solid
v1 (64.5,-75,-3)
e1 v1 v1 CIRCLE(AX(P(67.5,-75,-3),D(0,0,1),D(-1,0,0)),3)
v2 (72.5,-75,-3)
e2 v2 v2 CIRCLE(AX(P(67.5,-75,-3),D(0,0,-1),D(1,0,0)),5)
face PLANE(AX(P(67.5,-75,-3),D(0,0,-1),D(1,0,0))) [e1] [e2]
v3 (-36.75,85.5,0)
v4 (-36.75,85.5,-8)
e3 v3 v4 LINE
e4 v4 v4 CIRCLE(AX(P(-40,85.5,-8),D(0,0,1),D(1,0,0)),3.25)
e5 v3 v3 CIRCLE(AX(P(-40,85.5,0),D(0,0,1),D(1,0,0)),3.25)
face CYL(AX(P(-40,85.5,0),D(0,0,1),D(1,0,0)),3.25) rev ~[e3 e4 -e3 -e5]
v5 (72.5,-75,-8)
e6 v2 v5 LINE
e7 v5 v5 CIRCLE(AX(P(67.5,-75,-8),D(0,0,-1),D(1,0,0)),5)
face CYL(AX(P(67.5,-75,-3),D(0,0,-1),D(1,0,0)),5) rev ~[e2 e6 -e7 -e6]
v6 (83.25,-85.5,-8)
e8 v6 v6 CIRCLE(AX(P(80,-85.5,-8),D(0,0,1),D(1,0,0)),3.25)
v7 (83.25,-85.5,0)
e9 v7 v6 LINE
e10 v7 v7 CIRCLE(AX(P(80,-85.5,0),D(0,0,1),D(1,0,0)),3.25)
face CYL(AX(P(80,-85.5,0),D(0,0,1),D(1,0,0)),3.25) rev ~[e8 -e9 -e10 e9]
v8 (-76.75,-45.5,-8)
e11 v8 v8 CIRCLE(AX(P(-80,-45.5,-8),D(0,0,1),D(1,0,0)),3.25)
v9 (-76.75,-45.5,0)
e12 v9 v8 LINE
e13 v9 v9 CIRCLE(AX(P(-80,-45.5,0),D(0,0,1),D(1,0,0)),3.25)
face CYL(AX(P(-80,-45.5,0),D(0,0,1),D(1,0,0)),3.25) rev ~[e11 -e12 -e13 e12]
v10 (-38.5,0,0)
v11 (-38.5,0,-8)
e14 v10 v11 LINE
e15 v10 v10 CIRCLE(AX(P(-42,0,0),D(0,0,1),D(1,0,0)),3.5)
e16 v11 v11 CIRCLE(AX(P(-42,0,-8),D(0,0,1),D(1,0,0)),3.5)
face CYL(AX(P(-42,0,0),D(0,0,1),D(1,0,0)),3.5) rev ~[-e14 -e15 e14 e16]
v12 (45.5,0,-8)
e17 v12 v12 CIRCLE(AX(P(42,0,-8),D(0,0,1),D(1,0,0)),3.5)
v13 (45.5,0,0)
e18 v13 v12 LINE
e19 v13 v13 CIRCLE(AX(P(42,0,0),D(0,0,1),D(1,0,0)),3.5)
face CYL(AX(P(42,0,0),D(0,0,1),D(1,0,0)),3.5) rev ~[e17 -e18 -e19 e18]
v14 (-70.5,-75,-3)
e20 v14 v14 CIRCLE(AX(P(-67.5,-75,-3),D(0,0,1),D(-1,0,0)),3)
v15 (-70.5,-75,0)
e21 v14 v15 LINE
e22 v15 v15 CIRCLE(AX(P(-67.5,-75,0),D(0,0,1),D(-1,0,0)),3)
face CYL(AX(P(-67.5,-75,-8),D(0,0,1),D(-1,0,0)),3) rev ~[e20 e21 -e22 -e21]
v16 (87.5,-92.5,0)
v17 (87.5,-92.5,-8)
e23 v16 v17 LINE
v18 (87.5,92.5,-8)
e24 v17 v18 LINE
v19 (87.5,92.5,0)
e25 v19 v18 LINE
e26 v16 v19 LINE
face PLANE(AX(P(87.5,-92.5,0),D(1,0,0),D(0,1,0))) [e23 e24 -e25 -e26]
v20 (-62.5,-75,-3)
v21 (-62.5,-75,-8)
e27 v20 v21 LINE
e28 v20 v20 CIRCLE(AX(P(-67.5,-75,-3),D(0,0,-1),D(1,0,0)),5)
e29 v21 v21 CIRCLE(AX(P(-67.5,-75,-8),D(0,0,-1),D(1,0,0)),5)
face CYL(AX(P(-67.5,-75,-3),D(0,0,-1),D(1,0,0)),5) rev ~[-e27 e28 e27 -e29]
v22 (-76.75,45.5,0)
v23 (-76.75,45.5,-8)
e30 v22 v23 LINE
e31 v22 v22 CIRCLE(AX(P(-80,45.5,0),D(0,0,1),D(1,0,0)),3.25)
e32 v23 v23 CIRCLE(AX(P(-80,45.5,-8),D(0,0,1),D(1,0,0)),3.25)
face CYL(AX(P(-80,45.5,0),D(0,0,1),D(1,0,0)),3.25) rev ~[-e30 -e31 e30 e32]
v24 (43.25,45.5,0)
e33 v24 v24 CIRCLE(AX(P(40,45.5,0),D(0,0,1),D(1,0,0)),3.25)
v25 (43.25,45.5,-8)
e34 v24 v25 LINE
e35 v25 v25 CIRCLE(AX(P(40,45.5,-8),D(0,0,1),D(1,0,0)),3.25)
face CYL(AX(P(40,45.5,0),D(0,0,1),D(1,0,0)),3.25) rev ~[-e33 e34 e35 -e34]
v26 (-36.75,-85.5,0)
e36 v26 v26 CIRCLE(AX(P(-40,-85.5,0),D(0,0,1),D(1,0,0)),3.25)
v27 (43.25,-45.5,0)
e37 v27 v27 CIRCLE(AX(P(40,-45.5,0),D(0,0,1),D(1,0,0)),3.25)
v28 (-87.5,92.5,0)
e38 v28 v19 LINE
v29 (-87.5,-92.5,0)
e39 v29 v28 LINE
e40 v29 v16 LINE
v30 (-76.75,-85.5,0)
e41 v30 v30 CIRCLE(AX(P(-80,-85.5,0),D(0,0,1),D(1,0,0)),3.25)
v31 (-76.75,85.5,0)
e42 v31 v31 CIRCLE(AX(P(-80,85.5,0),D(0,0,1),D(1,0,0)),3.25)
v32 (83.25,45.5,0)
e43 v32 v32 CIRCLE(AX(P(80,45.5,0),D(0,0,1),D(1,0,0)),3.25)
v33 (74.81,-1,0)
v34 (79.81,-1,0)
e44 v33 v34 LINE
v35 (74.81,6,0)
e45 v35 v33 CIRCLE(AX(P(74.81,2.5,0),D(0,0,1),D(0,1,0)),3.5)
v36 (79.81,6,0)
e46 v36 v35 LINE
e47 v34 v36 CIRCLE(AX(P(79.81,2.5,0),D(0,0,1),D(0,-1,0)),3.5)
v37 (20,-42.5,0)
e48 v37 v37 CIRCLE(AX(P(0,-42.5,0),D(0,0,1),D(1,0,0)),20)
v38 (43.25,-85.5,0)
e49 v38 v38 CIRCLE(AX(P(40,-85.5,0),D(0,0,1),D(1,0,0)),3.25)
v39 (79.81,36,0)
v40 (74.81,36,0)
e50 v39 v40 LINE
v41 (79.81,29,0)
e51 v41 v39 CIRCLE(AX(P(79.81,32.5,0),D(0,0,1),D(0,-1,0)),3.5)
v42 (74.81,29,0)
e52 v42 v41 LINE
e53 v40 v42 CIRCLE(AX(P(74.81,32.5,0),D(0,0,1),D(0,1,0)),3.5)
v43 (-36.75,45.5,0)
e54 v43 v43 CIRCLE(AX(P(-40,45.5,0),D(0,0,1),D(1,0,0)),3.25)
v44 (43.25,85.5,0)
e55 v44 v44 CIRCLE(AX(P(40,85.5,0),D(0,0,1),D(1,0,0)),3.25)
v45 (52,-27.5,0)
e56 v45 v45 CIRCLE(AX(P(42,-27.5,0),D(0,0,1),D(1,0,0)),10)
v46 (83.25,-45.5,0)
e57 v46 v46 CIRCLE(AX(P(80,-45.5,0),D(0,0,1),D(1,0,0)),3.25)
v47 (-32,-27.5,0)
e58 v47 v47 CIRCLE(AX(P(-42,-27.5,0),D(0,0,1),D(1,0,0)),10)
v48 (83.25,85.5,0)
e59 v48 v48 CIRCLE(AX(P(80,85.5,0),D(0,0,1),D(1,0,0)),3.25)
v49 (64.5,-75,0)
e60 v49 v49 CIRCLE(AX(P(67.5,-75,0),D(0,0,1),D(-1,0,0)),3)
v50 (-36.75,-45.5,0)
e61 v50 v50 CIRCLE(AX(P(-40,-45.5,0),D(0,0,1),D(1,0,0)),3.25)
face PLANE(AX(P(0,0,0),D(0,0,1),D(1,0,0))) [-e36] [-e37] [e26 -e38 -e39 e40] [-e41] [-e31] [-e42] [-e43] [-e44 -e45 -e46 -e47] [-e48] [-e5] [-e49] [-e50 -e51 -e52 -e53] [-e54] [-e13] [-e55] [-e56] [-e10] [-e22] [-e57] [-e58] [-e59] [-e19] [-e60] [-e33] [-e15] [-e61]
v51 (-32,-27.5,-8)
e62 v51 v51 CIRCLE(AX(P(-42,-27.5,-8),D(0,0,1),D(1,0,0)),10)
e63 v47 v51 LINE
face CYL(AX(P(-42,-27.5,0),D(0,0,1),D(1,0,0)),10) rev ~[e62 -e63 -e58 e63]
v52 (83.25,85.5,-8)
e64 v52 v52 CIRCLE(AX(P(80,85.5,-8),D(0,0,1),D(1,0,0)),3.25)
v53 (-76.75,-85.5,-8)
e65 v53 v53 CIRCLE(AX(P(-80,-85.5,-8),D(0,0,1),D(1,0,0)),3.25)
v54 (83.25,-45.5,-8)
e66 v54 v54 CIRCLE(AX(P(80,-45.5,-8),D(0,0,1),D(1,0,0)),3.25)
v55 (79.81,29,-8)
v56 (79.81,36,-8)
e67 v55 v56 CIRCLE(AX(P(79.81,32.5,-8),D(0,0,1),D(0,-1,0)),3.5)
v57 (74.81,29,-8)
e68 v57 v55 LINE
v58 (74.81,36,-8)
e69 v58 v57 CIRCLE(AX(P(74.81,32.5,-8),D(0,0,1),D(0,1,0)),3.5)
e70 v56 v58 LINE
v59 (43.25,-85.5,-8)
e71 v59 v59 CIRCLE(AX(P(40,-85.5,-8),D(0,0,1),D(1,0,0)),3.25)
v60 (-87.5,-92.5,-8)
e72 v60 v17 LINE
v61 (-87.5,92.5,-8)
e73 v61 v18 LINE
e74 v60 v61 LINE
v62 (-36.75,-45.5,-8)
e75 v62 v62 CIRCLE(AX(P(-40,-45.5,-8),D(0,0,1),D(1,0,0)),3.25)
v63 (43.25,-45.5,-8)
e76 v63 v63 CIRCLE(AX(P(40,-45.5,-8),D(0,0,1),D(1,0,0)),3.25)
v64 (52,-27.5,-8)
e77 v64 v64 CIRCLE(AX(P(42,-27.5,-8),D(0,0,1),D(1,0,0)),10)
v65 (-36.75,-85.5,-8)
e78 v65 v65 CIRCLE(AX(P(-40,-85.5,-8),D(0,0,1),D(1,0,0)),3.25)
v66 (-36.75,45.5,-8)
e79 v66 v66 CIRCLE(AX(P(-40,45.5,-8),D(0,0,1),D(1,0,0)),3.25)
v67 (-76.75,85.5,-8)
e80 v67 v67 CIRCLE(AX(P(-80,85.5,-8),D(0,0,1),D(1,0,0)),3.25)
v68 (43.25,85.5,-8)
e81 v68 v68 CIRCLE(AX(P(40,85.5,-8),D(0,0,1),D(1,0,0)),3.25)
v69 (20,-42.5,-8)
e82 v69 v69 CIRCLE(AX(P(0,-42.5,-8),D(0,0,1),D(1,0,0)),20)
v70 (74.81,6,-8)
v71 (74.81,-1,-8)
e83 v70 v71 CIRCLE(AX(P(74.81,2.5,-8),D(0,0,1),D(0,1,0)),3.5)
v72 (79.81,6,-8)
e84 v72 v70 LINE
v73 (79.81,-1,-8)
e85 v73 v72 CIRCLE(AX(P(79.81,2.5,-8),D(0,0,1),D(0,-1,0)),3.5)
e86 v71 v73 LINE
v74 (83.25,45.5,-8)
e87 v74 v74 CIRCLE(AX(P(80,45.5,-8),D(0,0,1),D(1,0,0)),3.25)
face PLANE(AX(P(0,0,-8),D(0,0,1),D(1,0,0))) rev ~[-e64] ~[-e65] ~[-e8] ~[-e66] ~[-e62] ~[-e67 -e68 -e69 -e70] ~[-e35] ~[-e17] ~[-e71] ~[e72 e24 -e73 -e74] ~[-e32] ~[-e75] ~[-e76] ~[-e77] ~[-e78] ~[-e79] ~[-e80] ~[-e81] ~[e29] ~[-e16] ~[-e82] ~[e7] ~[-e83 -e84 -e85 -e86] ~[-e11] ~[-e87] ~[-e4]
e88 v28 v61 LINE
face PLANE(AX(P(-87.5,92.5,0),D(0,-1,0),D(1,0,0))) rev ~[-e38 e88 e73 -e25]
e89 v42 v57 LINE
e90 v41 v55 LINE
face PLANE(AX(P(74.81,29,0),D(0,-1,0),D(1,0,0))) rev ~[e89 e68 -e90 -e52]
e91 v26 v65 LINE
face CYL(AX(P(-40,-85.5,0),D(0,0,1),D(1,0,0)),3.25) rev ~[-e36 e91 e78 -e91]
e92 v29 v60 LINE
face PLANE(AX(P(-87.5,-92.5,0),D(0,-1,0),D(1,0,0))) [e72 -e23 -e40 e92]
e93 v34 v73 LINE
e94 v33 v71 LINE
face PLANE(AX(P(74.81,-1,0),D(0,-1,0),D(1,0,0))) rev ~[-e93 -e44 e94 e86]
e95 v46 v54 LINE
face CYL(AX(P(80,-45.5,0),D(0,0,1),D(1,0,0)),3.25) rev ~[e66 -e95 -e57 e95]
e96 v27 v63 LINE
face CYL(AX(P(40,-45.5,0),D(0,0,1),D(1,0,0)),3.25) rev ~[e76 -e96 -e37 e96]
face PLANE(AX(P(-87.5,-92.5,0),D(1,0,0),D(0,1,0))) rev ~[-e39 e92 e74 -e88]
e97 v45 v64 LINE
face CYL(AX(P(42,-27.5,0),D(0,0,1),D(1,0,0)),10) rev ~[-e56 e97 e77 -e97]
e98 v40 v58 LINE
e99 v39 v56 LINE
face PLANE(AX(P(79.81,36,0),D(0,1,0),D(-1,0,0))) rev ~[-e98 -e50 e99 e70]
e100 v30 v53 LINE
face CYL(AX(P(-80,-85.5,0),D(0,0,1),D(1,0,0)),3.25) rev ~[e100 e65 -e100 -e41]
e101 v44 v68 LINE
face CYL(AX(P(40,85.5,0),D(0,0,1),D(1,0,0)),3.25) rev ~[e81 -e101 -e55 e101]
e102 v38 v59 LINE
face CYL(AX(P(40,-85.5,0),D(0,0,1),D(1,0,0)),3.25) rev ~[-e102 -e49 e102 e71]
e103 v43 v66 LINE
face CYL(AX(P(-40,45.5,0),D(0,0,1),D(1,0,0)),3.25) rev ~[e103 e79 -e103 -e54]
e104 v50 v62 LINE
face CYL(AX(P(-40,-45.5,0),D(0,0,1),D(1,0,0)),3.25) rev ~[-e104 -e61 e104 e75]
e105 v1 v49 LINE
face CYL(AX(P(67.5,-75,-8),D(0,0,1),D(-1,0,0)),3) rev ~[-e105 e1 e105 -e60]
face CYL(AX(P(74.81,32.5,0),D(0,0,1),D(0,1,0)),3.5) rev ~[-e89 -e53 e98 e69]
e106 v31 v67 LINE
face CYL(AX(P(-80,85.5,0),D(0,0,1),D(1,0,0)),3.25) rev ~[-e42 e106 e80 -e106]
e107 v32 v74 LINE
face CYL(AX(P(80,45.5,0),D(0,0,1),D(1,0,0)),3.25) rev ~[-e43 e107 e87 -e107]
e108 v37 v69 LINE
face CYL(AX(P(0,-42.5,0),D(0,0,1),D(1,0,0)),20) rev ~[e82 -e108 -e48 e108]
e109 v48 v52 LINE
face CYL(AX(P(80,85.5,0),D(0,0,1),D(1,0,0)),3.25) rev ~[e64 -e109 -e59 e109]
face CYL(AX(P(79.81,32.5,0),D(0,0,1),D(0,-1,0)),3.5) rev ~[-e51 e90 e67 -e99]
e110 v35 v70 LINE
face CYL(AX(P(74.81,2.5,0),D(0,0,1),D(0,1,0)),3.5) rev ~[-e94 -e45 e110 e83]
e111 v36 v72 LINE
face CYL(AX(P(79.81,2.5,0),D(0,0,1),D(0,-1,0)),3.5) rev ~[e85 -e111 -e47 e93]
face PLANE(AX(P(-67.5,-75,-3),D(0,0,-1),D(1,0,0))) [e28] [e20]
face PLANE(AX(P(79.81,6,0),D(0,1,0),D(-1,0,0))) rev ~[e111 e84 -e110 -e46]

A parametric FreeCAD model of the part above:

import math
import FreeCAD as App
import Part
import Sketcher

V = App.Vector


def add_polygon(sketch, points):
    """Adds a closed chain of lines whose ends are joined by coincident constraints."""
    first, n = sketch.GeometryCount, len(points)
    for a, b in zip(points, points[1:] + points[:1]):
        sketch.addGeometry(Part.LineSegment(App.Vector(*a, 0), App.Vector(*b, 0)), False)
    for i in range(n):
        sketch.addConstraint(Sketcher.Constraint("Coincident", first + i, 2, first + (i + 1) % n, 1))

doc = App.newDocument("Part")
params = doc.addObject("Spreadsheet::Sheet", "Params")
for row, (alias, value) in enumerate([
    ("sketch1_width", "175 mm"),
    ("sketch1_height", "185 mm"),
    ("pad1_length", "8 mm"),
    ("sketch2_diameter", "7 mm"),
    ("sketch2_diameter2", "20 mm"),
    ("sketch2_diameter3", "40 mm"),
    ("sketch2_diameter4", "6.5 mm"),
    ("sketch2_width", "5 mm"),
    ("pocket1_length", "25 mm"),
    ("sketch3_diameter", "6 mm"),
    ("hole_diameter", "6 mm"),
    ("hole_depth", "15 mm"),
    ("hole_cbore_diameter", "10 mm"),
    ("hole_cbore_depth", "5 mm"),
], start=1):
    params.set(f"A{row}", alias)
    params.set(f"B{row}", "=" + value)
    params.setAlias(f"B{row}", alias)

body = doc.addObject("PartDesign::Body", "Body")

# Sketch on XY plane
sketch1 = body.newObject("Sketcher::SketchObject", "Sketch")
sketch1.AttachmentSupport = (doc.getObject("XY_Plane"), [""])
sketch1.MapMode = "FlatFace"
add_polygon(sketch1, [(-87.5, 92.5), (-87.5, -92.5), (87.5, -92.5), (87.5, 92.5)])  # lines 0-3
sketch1.addConstraint(Sketcher.Constraint("Vertical", 0))
sketch1.addConstraint(Sketcher.Constraint("Horizontal", 1))
sketch1.addConstraint(Sketcher.Constraint("Vertical", 2))
sketch1.addConstraint(Sketcher.Constraint("Horizontal", 3))
sketch1.addConstraint(Sketcher.Constraint("Symmetric", 0, 2, 2, 2, -1, 1))
sketch1.addConstraint(Sketcher.Constraint("DistanceX", 1, 1, 1, 2, 175.0))
sketch1.addConstraint(Sketcher.Constraint("DistanceY", 0, 2, 0, 1, 185.0))
sketch1.setExpression("Constraints[9]", "Params.sketch1_width")
sketch1.setExpression("Constraints[10]", "Params.sketch1_height")
pad1 = body.newObject("PartDesign::Pad", "Pad")
pad1.Profile = sketch1
pad1.setExpression("Length", "Params.pad1_length")
pad1.Reversed = True

# Sketch on XY plane
sketch2 = body.newObject("Sketcher::SketchObject", "Sketch001")
sketch2.AttachmentSupport = (doc.getObject("XY_Plane"), [""])
sketch2.MapMode = "FlatFace"
sketch2.addGeometry(Part.Circle(V(-80, 85.5, 0), V(0, 0, 1), 3.25), False)
sketch2.addGeometry(Part.Circle(V(-40, 85.5, 0), V(0, 0, 1), 3.25), False)
sketch2.addGeometry(Part.Circle(V(-40, 45.5, 0), V(0, 0, 1), 3.25), False)
sketch2.addGeometry(Part.Circle(V(-80, 45.5, 0), V(0, 0, 1), 3.25), False)
sketch2.addGeometry(Part.Circle(V(40, 85.5, 0), V(0, 0, 1), 3.25), False)
sketch2.addGeometry(Part.Circle(V(80, 85.5, 0), V(0, 0, 1), 3.25), False)
sketch2.addGeometry(Part.Circle(V(40, 45.5, 0), V(0, 0, 1), 3.25), False)
sketch2.addGeometry(Part.Circle(V(80, 45.5, 0), V(0, 0, 1), 3.25), False)
sketch2.addGeometry(Part.ArcOfCircle(Part.Circle(V(79.81, 32.5, 0), V(0, 0, 1), 3.5), math.radians(-90), math.radians(90)), False)
sketch2.addGeometry(Part.LineSegment(V(79.81, 36, 0), V(74.81, 36, 0)), False)
sketch2.addGeometry(Part.ArcOfCircle(Part.Circle(V(74.81, 32.5, 0), V(0, 0, 1), 3.5), math.radians(90), math.radians(270)), False)
sketch2.addGeometry(Part.LineSegment(V(74.81, 29, 0), V(79.81, 29, 0)), False)
sketch2.addGeometry(Part.ArcOfCircle(Part.Circle(V(79.81, 2.5, 0), V(0, 0, 1), 3.5), math.radians(-90), math.radians(90)), False)
sketch2.addGeometry(Part.LineSegment(V(79.81, 6, 0), V(74.81, 6, 0)), False)
sketch2.addGeometry(Part.ArcOfCircle(Part.Circle(V(74.81, 2.5, 0), V(0, 0, 1), 3.5), math.radians(90), math.radians(270)), False)
sketch2.addGeometry(Part.LineSegment(V(74.81, -1, 0), V(79.81, -1, 0)), False)
sketch2.addGeometry(Part.Circle(V(42, 0, 0), V(0, 0, 1), 3.5), False)
sketch2.addGeometry(Part.Circle(V(42, -27.5, 0), V(0, 0, 1), 10), False)
sketch2.addGeometry(Part.Circle(V(40, -45.5, 0), V(0, 0, 1), 3.25), False)
sketch2.addGeometry(Part.Circle(V(80, -85.5, 0), V(0, 0, 1), 3.25), False)
sketch2.addGeometry(Part.Circle(V(80, -45.5, 0), V(0, 0, 1), 3.25), False)
sketch2.addGeometry(Part.Circle(V(40, -85.5, 0), V(0, 0, 1), 3.25), False)
sketch2.addGeometry(Part.Circle(V(-40, -85.5, 0), V(0, 0, 1), 3.25), False)
sketch2.addGeometry(Part.Circle(V(-80, -85.5, 0), V(0, 0, 1), 3.25), False)
sketch2.addGeometry(Part.Circle(V(-80, -45.5, 0), V(0, 0, 1), 3.25), False)
sketch2.addGeometry(Part.Circle(V(-40, -45.5, 0), V(0, 0, 1), 3.25), False)
sketch2.addGeometry(Part.Circle(V(-42, -27.5, 0), V(0, 0, 1), 10), False)
sketch2.addGeometry(Part.Circle(V(-42, 0, 0), V(0, 0, 1), 3.5), False)
sketch2.addGeometry(Part.Circle(V(0, -42.5, 0), V(0, 0, 1), 20), False)
sketch2.addConstraint(Sketcher.Constraint("Tangent", 8, 2, 9, 1))
sketch2.addConstraint(Sketcher.Constraint("Tangent", 9, 2, 10, 1))
sketch2.addConstraint(Sketcher.Constraint("Tangent", 10, 2, 11, 1))
sketch2.addConstraint(Sketcher.Constraint("Tangent", 11, 2, 8, 1))
sketch2.addConstraint(Sketcher.Constraint("Tangent", 12, 2, 13, 1))
sketch2.addConstraint(Sketcher.Constraint("Tangent", 13, 2, 14, 1))
sketch2.addConstraint(Sketcher.Constraint("Tangent", 14, 2, 15, 1))
sketch2.addConstraint(Sketcher.Constraint("Tangent", 15, 2, 12, 1))
sketch2.addConstraint(Sketcher.Constraint("Horizontal", 9))
sketch2.addConstraint(Sketcher.Constraint("Horizontal", 11))
sketch2.addConstraint(Sketcher.Constraint("Horizontal", 13))
sketch2.addConstraint(Sketcher.Constraint("Horizontal", 15))
sketch2.addConstraint(Sketcher.Constraint("Equal", 0, 1))
sketch2.addConstraint(Sketcher.Constraint("Equal", 1, 2))
sketch2.addConstraint(Sketcher.Constraint("Equal", 2, 3))
sketch2.addConstraint(Sketcher.Constraint("Equal", 3, 4))
sketch2.addConstraint(Sketcher.Constraint("Equal", 4, 5))
sketch2.addConstraint(Sketcher.Constraint("Equal", 5, 6))
sketch2.addConstraint(Sketcher.Constraint("Equal", 6, 7))
sketch2.addConstraint(Sketcher.Constraint("Equal", 10, 12))
sketch2.addConstraint(Sketcher.Constraint("Equal", 14, 16))
sketch2.addConstraint(Sketcher.Constraint("Equal", 7, 18))
sketch2.addConstraint(Sketcher.Constraint("Equal", 18, 19))
sketch2.addConstraint(Sketcher.Constraint("Equal", 19, 20))
sketch2.addConstraint(Sketcher.Constraint("Equal", 20, 21))
sketch2.addConstraint(Sketcher.Constraint("Equal", 21, 22))
sketch2.addConstraint(Sketcher.Constraint("Equal", 22, 23))
sketch2.addConstraint(Sketcher.Constraint("Equal", 23, 24))
sketch2.addConstraint(Sketcher.Constraint("Equal", 24, 25))
sketch2.addConstraint(Sketcher.Constraint("Equal", 17, 26))
sketch2.addConstraint(Sketcher.Constraint("Equal", 16, 27))
sketch2.addConstraint(Sketcher.Constraint("Symmetric", 2, 3, 18, 3, -1, 1))
sketch2.addConstraint(Sketcher.Constraint("Symmetric", 0, 3, 19, 3, -1, 1))
sketch2.addConstraint(Sketcher.Constraint("Symmetric", 3, 3, 20, 3, -1, 1))
sketch2.addConstraint(Sketcher.Constraint("Symmetric", 1, 3, 21, 3, -1, 1))
sketch2.addConstraint(Sketcher.Constraint("Symmetric", 4, 3, 22, 3, -1, 1))
sketch2.addConstraint(Sketcher.Constraint("Symmetric", 5, 3, 23, 3, -1, 1))
sketch2.addConstraint(Sketcher.Constraint("Symmetric", 7, 3, 24, 3, -1, 1))
sketch2.addConstraint(Sketcher.Constraint("Symmetric", 6, 3, 25, 3, -1, 1))
sketch2.addConstraint(Sketcher.Constraint("Symmetric", 16, 3, 27, 3, -1, 1))
sketch2.addConstraint(Sketcher.Constraint("Symmetric", 1, 3, 4, 3, -2))
sketch2.addConstraint(Sketcher.Constraint("Symmetric", 0, 3, 5, 3, -2))
sketch2.addConstraint(Sketcher.Constraint("Symmetric", 2, 3, 6, 3, -2))
sketch2.addConstraint(Sketcher.Constraint("Symmetric", 3, 3, 7, 3, -2))
sketch2.addConstraint(Sketcher.Constraint("Symmetric", 17, 3, 26, 3, -2))
sketch2.addConstraint(Sketcher.Constraint("PointOnObject", 16, 3, -1))
sketch2.addConstraint(Sketcher.Constraint("PointOnObject", 28, 3, -2))
sketch2.addConstraint(Sketcher.Constraint("Horizontal", 0, 3, 1, 3))
sketch2.addConstraint(Sketcher.Constraint("Horizontal", 2, 3, 3, 3))
sketch2.addConstraint(Sketcher.Constraint("Vertical", 1, 3, 2, 3))
sketch2.addConstraint(Sketcher.Constraint("Vertical", 0, 3, 3, 3))
sketch2.addConstraint(Sketcher.Constraint("Vertical", 8, 3, 12, 3))
sketch2.addConstraint(Sketcher.Constraint("Vertical", 10, 3, 14, 3))
sketch2.addConstraint(Sketcher.Constraint("Vertical", 16, 3, 17, 3))
sketch2.addConstraint(Sketcher.Constraint("Diameter", 16, 7.0))
sketch2.addConstraint(Sketcher.Constraint("Diameter", 17, 20.0))
sketch2.addConstraint(Sketcher.Constraint("Diameter", 28, 40.0))
sketch2.addConstraint(Sketcher.Constraint("Diameter", 0, 6.5))
sketch2.addConstraint(Sketcher.Constraint("DistanceX", 9, 2, 9, 1, 5.0))
sketch2.addConstraint(Sketcher.Constraint("DistanceX", 0, 3, -1, 1, 80.0))
sketch2.addConstraint(Sketcher.Constraint("DistanceX", 1, 3, -1, 1, 40.0))
sketch2.addConstraint(Sketcher.Constraint("DistanceX", -1, 1, 16, 3, 42.0))
sketch2.addConstraint(Sketcher.Constraint("DistanceY", -1, 1, 8, 2, 36.0))
sketch2.addConstraint(Sketcher.Constraint("DistanceY", -1, 1, 12, 2, 6.0))
sketch2.addConstraint(Sketcher.Constraint("DistanceY", 2, 3, 1, 3, 40.0))
sketch2.addConstraint(Sketcher.Constraint("DistanceY", 8, 3, 7, 3, 13.0))
sketch2.addConstraint(Sketcher.Constraint("DistanceY", 17, 3, 14, 3, 30.0))
sketch2.addConstraint(Sketcher.Constraint("DistanceY", 18, 3, 28, 3, 3.0))
sketch2.addConstraint(Sketcher.Constraint("DistanceX", -1, 1, 8, 3, 79.81))
sketch2.setExpression("Constraints[54]", "Params.sketch2_diameter")
sketch2.setExpression("Constraints[55]", "Params.sketch2_diameter2")
sketch2.setExpression("Constraints[56]", "Params.sketch2_diameter3")
sketch2.setExpression("Constraints[57]", "Params.sketch2_diameter4")
sketch2.setExpression("Constraints[58]", "Params.sketch2_width")
pocket1 = body.newObject("PartDesign::Pocket", "Pocket")
pocket1.Profile = sketch2
pocket1.setExpression("Length", "Params.pocket1_length")

# Sketch on XY plane
sketch3 = body.newObject("Sketcher::SketchObject", "Sketch002")
sketch3.AttachmentSupport = (doc.getObject("XY_Plane"), [""])
sketch3.MapMode = "FlatFace"
sketch3.AttachmentOffset = App.Placement(V(0, 0, -8), App.Rotation())
sketch3.addGeometry(Part.Circle(V(-67.5, -75, 0), V(0, 0, 1), 3), False)
sketch3.addGeometry(Part.Circle(V(67.5, -75, 0), V(0, 0, 1), 3), False)
sketch3.addConstraint(Sketcher.Constraint("Equal", 0, 1))
sketch3.addConstraint(Sketcher.Constraint("Symmetric", 0, 3, 1, 3, -2))
sketch3.addConstraint(Sketcher.Constraint("Diameter", 0, 6.0))
sketch3.addConstraint(Sketcher.Constraint("DistanceY", 0, 3, -1, 1, 75.0))
sketch3.addConstraint(Sketcher.Constraint("DistanceX", 0, 3, 1, 3, 135.0))
sketch3.setExpression("Constraints[2]", "Params.sketch3_diameter")
doc.recompute()
hole = body.newObject("PartDesign::Hole", "Hole")
hole.Profile = sketch3
hole.ThreadType = "None"
hole.setExpression("Diameter", "Params.hole_diameter")
hole.DepthType = "Dimension"
hole.setExpression("Depth", "Params.hole_depth")
hole.DrillPoint = "Flat"
hole.HoleCutType = "Counterbore"
hole.setExpression("HoleCutDiameter", "Params.hole_cbore_diameter")
hole.setExpression("HoleCutDepth", "Params.hole_cbore_depth")
hole.Reversed = True

doc.recompute()
